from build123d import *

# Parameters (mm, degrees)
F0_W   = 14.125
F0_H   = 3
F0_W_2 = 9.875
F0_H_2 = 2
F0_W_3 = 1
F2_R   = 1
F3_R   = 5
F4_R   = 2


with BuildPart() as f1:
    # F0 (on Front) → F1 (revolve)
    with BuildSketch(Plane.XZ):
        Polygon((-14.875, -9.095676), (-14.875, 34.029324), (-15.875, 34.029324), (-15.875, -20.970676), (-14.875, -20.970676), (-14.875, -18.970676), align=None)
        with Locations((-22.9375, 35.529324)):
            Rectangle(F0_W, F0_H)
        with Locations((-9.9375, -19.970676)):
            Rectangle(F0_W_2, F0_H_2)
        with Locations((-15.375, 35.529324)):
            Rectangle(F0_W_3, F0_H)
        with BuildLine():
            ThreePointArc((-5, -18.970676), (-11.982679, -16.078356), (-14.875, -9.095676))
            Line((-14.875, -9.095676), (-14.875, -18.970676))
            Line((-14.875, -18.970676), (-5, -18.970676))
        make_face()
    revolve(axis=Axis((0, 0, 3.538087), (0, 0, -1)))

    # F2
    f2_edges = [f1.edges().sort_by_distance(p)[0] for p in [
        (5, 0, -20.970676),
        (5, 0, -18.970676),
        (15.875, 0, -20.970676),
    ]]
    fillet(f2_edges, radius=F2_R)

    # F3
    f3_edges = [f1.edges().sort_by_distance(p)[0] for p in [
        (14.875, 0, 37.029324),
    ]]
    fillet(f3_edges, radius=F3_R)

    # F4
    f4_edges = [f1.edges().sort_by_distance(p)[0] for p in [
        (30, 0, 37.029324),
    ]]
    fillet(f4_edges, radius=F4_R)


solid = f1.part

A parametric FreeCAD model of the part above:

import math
import FreeCAD as App
import Part
import Sketcher


def edges_at(feature, points):
    """Names of the edges that pass closest to the given points."""
    edges = feature.Shape.Edges
    near = lambda p: min(range(len(edges)), key=lambda i: edges[i].distToShape(Part.Vertex(*p))[0])
    return sorted({f"Edge{near(p) + 1}" for p in points})

doc = App.newDocument("Part")
params = doc.addObject("Spreadsheet::Sheet", "Params")
for row, (alias, value) in enumerate([
    ("sketch1_height", "55 mm"),
    ("sketch1_height2", "2 mm"),
    ("sketch1_height3", "3 mm"),
    ("revolution_angle", "360 deg"),
    ("fillet_radius", "1 mm"),
    ("fillet2_radius", "5 mm"),
    ("fillet3_radius", "2 mm"),
], start=1):
    params.set(f"A{row}", alias)
    params.set(f"B{row}", "=" + value)
    params.setAlias(f"B{row}", alias)

body = doc.addObject("PartDesign::Body", "Body")

# Sketch on XZ plane
sketch1 = body.newObject("Sketcher::SketchObject", "Sketch")
sketch1.AttachmentSupport = (doc.getObject("XZ_Plane"), [""])
sketch1.MapMode = "FlatFace"
sketch1.addGeometry(Part.LineSegment(App.Vector(-15.9, 34, 0), App.Vector(-15.9, -21, 0)), False)
sketch1.addGeometry(Part.LineSegment(App.Vector(-15.9, -21, 0), App.Vector(-5, -21, 0)), False)
sketch1.addGeometry(Part.LineSegment(App.Vector(-5, -21, 0), App.Vector(-5, -19, 0)), False)
sketch1.addGeometry(Part.ArcOfCircle(Part.Circle(App.Vector(-5, -9.1, 0), App.Vector(0, 0, 1), 9.9), math.radians(180), math.radians(270)), False)
sketch1.addGeometry(Part.LineSegment(App.Vector(-14.9, -9.1, 0), App.Vector(-14.9, 37, 0)), False)
sketch1.addGeometry(Part.LineSegment(App.Vector(-14.9, 37, 0), App.Vector(-30, 37, 0)), False)
sketch1.addGeometry(Part.LineSegment(App.Vector(-30, 37, 0), App.Vector(-30, 34, 0)), False)
sketch1.addGeometry(Part.LineSegment(App.Vector(-30, 34, 0), App.Vector(-15.9, 34, 0)), False)
sketch1.addConstraint(Sketcher.Constraint("Coincident", 0, 2, 1, 1))
sketch1.addConstraint(Sketcher.Constraint("Coincident", 1, 2, 2, 1))
sketch1.addConstraint(Sketcher.Constraint("Coincident", 2, 2, 3, 2))
sketch1.addConstraint(Sketcher.Constraint("Tangent", 3, 1, 4, 1))
sketch1.addConstraint(Sketcher.Constraint("Coincident", 4, 2, 5, 1))
sketch1.addConstraint(Sketcher.Constraint("Coincident", 5, 2, 6, 1))
sketch1.addConstraint(Sketcher.Constraint("Coincident", 6, 2, 7, 1))
sketch1.addConstraint(Sketcher.Constraint("Coincident", 7, 2, 0, 1))
sketch1.addConstraint(Sketcher.Constraint("Vertical", 0))
sketch1.addConstraint(Sketcher.Constraint("Horizontal", 1))
sketch1.addConstraint(Sketcher.Constraint("Vertical", 2))
sketch1.addConstraint(Sketcher.Constraint("Vertical", 4))
sketch1.addConstraint(Sketcher.Constraint("Horizontal", 5))
sketch1.addConstraint(Sketcher.Constraint("Vertical", 6))
sketch1.addConstraint(Sketcher.Constraint("Horizontal", 7))
sketch1.addConstraint(Sketcher.Constraint("Vertical", 3, 3, 1, 2))
sketch1.addConstraint(Sketcher.Constraint("DistanceY", 0, 2, 0, 1, 55.0))
sketch1.addConstraint(Sketcher.Constraint("DistanceY", 2, 1, 2, 2, 2.0))
sketch1.addConstraint(Sketcher.Constraint("DistanceY", 6, 2, 6, 1, 3.0))
sketch1.addConstraint(Sketcher.Constraint("DistanceX", 3, 3, -1, 1, 5.0))
sketch1.addConstraint(Sketcher.Constraint("DistanceX", 5, 2, -1, 1, 30.0))
sketch1.addConstraint(Sketcher.Constraint("Radius", 3, 9.875))
sketch1.addConstraint(Sketcher.Constraint("DistanceX", 0, 2, 3, 1, 1.0))
sketch1.addConstraint(Sketcher.Constraint("DistanceY", 3, 3, -1, 1, 9.095676))
sketch1.setExpression("Constraints[16]", "Params.sketch1_height")
sketch1.setExpression("Constraints[17]", "Params.sketch1_height2")
sketch1.setExpression("Constraints[18]", "Params.sketch1_height3")
revolution = body.newObject("PartDesign::Revolution", "Revolution")
revolution.Profile = sketch1
revolution.ReferenceAxis = (sketch1, ["V_Axis"])
revolution.setExpression("Angle", "Params.revolution_angle")
doc.recompute()

fillet = body.newObject("PartDesign::Fillet", "Fillet")
fillet.Base = (revolution, edges_at(revolution, [(5, 0, -20.971), (5, 0, -18.971), (15.875, 0, -20.971)]))
fillet.setExpression("Radius", "Params.fillet_radius")
doc.recompute()

fillet2 = body.newObject("PartDesign::Fillet", "Fillet001")
fillet2.Base = (fillet, edges_at(fillet, [(14.875, 0, 37.029)]))
fillet2.setExpression("Radius", "Params.fillet2_radius")
doc.recompute()

fillet3 = body.newObject("PartDesign::Fillet", "Fillet002")
fillet3.Base = (fillet2, edges_at(fillet2, [(30, 0, 37.029)]))
fillet3.setExpression("Radius", "Params.fillet3_radius")

doc.recompute()
